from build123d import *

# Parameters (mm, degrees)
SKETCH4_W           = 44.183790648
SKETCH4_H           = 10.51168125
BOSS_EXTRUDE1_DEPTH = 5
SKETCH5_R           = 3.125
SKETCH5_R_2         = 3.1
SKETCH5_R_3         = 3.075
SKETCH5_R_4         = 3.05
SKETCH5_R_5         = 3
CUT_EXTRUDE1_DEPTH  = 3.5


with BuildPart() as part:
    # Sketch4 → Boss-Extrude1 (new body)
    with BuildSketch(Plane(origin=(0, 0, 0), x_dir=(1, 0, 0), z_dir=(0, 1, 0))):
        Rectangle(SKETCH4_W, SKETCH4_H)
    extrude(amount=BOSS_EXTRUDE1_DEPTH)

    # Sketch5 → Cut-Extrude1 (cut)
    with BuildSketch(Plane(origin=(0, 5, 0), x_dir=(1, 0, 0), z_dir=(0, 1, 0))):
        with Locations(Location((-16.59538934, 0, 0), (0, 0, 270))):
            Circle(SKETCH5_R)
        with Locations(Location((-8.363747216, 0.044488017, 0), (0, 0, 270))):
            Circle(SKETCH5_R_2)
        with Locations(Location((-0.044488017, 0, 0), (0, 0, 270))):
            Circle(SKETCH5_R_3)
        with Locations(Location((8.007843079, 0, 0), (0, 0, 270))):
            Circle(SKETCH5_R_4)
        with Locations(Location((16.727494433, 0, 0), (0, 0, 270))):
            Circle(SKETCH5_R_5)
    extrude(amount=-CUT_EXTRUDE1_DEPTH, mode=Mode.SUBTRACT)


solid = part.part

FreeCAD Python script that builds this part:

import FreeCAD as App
import Part
import Sketcher

V = App.Vector

doc = App.newDocument("Part")
params = doc.addObject("Spreadsheet::Sheet", "Params")
for row, (alias, value) in enumerate([
    ("pad1_length", "5 mm"),
    ("sketch2_diameter", "6 mm"),
    ("sketch2_diameter2", "6.2 mm"),
    ("sketch2_diameter3", "6.1 mm"),
    ("sketch2_diameter4", "6.25 mm"),
    ("sketch2_diameter5", "6.15 mm"),
    ("pocket1_length", "3.5 mm"),
], start=1):
    params.set(f"A{row}", alias)
    params.set(f"B{row}", "=" + value)
    params.setAlias(f"B{row}", alias)

body = doc.addObject("PartDesign::Body", "Body")

# Sketch on XZ plane
sketch1 = doc.addObject("Sketcher::SketchObject", "Sketch")
body.addObject(sketch1)
sketch1.AttachmentSupport = (doc.XZ_Plane, [""])
sketch1.MapMode = "FlatFace"
sketch1.addGeometry(Part.LineSegment(V(-22.091895, -5.255841, 0), V(-22.091895, 5.255841, 0)), False)
sketch1.addGeometry(Part.LineSegment(V(-22.091895, 5.255841, 0), V(22.091895, 5.255841, 0)), False)
sketch1.addGeometry(Part.LineSegment(V(22.091895, 5.255841, 0), V(22.091895, -5.255841, 0)), False)
sketch1.addGeometry(Part.LineSegment(V(22.091895, -5.255841, 0), V(-22.091895, -5.255841, 0)), False)
sketch1.addConstraint(Sketcher.Constraint("Coincident", 0, 2, 1, 1))
sketch1.addConstraint(Sketcher.Constraint("Coincident", 1, 2, 2, 1))
sketch1.addConstraint(Sketcher.Constraint("Coincident", 2, 2, 3, 1))
sketch1.addConstraint(Sketcher.Constraint("Coincident", 3, 2, 0, 1))
sketch1.addConstraint(Sketcher.Constraint("Vertical", 0))
sketch1.addConstraint(Sketcher.Constraint("Horizontal", 1))
sketch1.addConstraint(Sketcher.Constraint("Vertical", 2))
sketch1.addConstraint(Sketcher.Constraint("Horizontal", 3))
sketch1.addConstraint(Sketcher.Constraint("Symmetric", 0, 2, 2, 2, -1, 1))
sketch1.addConstraint(Sketcher.Constraint("DistanceX", 1, 1, 1, 2, 44.183791))
sketch1.addConstraint(Sketcher.Constraint("DistanceY", 0, 1, 0, 2, 10.511681))
pad1 = doc.addObject("PartDesign::Pad", "Pad")
body.addObject(pad1)
pad1.Profile = sketch1
pad1.setExpression("Length", "Params.pad1_length")
pad1.Reversed = True

# Sketch on XZ plane
sketch2 = doc.addObject("Sketcher::SketchObject", "Sketch001")
body.addObject(sketch2)
sketch2.AttachmentSupport = (doc.XZ_Plane, [""])
sketch2.MapMode = "FlatFace"
sketch2.AttachmentOffset = App.Placement(V(0, 0, -5), App.Rotation())
sketch2.addGeometry(Part.Circle(V(-16.595389, 0, 0), V(0, 0, 1), 3.125), False)
sketch2.addGeometry(Part.Circle(V(-8.363747, -0.044488, 0), V(0, 0, 1), 3.1), False)
sketch2.addGeometry(Part.Circle(V(-0.044488, 0, 0), V(0, 0, 1), 3.075), False)
sketch2.addGeometry(Part.Circle(V(8.007843, 0, 0), V(0, 0, 1), 3.05), False)
sketch2.addGeometry(Part.Circle(V(16.727494, 0, 0), V(0, 0, 1), 3), False)
sketch2.addConstraint(Sketcher.Constraint("PointOnObject", 0, 3, -1))
sketch2.addConstraint(Sketcher.Constraint("PointOnObject", 2, 3, -1))
sketch2.addConstraint(Sketcher.Constraint("PointOnObject", 3, 3, -1))
sketch2.addConstraint(Sketcher.Constraint("PointOnObject", 4, 3, -1))
sketch2.addConstraint(Sketcher.Constraint("Diameter", 4, 6.0))
sketch2.addConstraint(Sketcher.Constraint("Diameter", 1, 6.2))
sketch2.addConstraint(Sketcher.Constraint("Diameter", 3, 6.1))
sketch2.addConstraint(Sketcher.Constraint("Diameter", 0, 6.25))
sketch2.addConstraint(Sketcher.Constraint("Diameter", 2, 6.15))
sketch2.addConstraint(Sketcher.Constraint("DistanceX", 0, 3, 2, 3, 16.550901))
sketch2.addConstraint(Sketcher.Constraint("DistanceX", 0, 3, -1, 1, 16.595389))
sketch2.addConstraint(Sketcher.Constraint("DistanceY", 1, 3, -1, 1, 0.044488))
sketch2.addConstraint(Sketcher.Constraint("DistanceX", 1, 3, 2, 3, 8.319259))
sketch2.addConstraint(Sketcher.Constraint("DistanceX", 2, 3, 3, 3, 8.052331))
sketch2.addConstraint(Sketcher.Constraint("DistanceX", 3, 3, 4, 3, 8.719651))
sketch2.setExpression("Constraints[4]", "Params.sketch2_diameter")
sketch2.setExpression("Constraints[5]", "Params.sketch2_diameter2")
sketch2.setExpression("Constraints[6]", "Params.sketch2_diameter3")
sketch2.setExpression("Constraints[7]", "Params.sketch2_diameter4")
sketch2.setExpression("Constraints[8]", "Params.sketch2_diameter5")
pocket1 = doc.addObject("PartDesign::Pocket", "Pocket")
body.addObject(pocket1)
pocket1.Profile = sketch2
pocket1.setExpression("Length", "Params.pocket1_length")
pocket1.Reversed = True

doc.recompute()
